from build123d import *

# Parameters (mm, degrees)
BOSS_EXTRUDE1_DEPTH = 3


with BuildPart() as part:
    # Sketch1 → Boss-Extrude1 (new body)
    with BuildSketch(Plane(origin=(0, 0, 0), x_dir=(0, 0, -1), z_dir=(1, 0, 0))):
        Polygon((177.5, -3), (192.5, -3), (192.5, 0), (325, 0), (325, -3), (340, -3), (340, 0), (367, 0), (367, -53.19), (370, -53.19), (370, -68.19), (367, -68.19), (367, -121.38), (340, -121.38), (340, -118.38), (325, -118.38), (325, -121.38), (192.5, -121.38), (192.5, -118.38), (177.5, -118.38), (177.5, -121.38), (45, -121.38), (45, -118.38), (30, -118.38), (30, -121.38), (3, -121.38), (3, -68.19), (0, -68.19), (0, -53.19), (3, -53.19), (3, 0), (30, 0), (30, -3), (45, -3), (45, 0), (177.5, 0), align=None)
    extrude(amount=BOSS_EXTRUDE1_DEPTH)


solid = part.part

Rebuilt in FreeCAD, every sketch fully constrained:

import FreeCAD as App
import Part
import Sketcher

V = App.Vector
Q = App.Units.Quantity


def add_polygon(sketch, points):
    """Adds a closed chain of lines whose ends are joined by coincident constraints."""
    first, n = sketch.GeometryCount, len(points)
    for a, b in zip(points, points[1:] + points[:1]):
        sketch.addGeometry(Part.LineSegment(App.Vector(*a, 0), App.Vector(*b, 0)), False)
    for i in range(n):
        sketch.addConstraint(Sketcher.Constraint("Coincident", first + i, 2, first + (i + 1) % n, 1))

doc = App.newDocument("Part")
body = doc.addObject("PartDesign::Body", "Body")

# Sketch on YZ plane
sketch1 = doc.addObject("Sketcher::SketchObject", "Sketch")
body.addObject(sketch1)
sketch1.AttachmentSupport = (doc.YZ_Plane, [""])
sketch1.MapMode = "FlatFace"
add_polygon(sketch1, [(-3, -192.5), (-3, -177.5), (0, -177.5), (0, -45), (-3, -45), (-3, -30), (0, -30), (0, -3), (-53.19, -3), (-53.19, 0), (-68.19, 0), (-68.19, -3), (-121.38, -3), (-121.38, -30), (-118.38, -30), (-118.38, -45), (-121.38, -45), (-121.38, -177.5), (-118.38, -177.5), (-118.38, -192.5), (-121.38, -192.5), (-121.38, -325), (-118.38, -325), (-118.38, -340), (-121.38, -340), (-121.38, -367), (-68.19, -367), (-68.19, -370), (-53.19, -370), (-53.19, -367), (0, -367), (0, -340), (-3, -340), (-3, -325), (0, -325), (0, -192.5)])  # lines 0-35
sketch1.addConstraint([
    Sketcher.Constraint("Vertical", 0),
    Sketcher.Constraint("Horizontal", 1),
    Sketcher.Constraint("Vertical", 2),
    Sketcher.Constraint("Horizontal", 3),
    Sketcher.Constraint("Vertical", 4),
    Sketcher.Constraint("Horizontal", 5),
    Sketcher.Constraint("Vertical", 6),
    Sketcher.Constraint("Horizontal", 7),
    Sketcher.Constraint("Vertical", 8),
    Sketcher.Constraint("Horizontal", 9),
    Sketcher.Constraint("Vertical", 10),
    Sketcher.Constraint("Horizontal", 11),
    Sketcher.Constraint("Vertical", 12),
    Sketcher.Constraint("Horizontal", 13),
    Sketcher.Constraint("Vertical", 14),
    Sketcher.Constraint("Horizontal", 15),
    Sketcher.Constraint("Vertical", 16),
    Sketcher.Constraint("Horizontal", 17),
    Sketcher.Constraint("Vertical", 18),
    Sketcher.Constraint("Horizontal", 19),
    Sketcher.Constraint("Vertical", 20),
    Sketcher.Constraint("Horizontal", 21),
    Sketcher.Constraint("Vertical", 22),
    Sketcher.Constraint("Horizontal", 23),
    Sketcher.Constraint("Vertical", 24),
    Sketcher.Constraint("Horizontal", 25),
    Sketcher.Constraint("Vertical", 26),
    Sketcher.Constraint("Horizontal", 27),
    Sketcher.Constraint("Vertical", 28),
    Sketcher.Constraint("Horizontal", 29),
    Sketcher.Constraint("Vertical", 30),
    Sketcher.Constraint("Horizontal", 31),
    Sketcher.Constraint("Vertical", 32),
    Sketcher.Constraint("Horizontal", 33),
    Sketcher.Constraint("Vertical", 34),
    Sketcher.Constraint("Horizontal", 35),
    Sketcher.Constraint("PointOnObject", 1, 2, -2),
    Sketcher.Constraint("PointOnObject", 5, 2, -2),
    Sketcher.Constraint("PointOnObject", 8, 2, -1),
    Sketcher.Constraint("PointOnObject", 29, 2, -2),
    Sketcher.Constraint("PointOnObject", 33, 2, -2),
    Sketcher.Constraint("Horizontal", 7, 2, 10, 2),
    Sketcher.Constraint("Horizontal", 5, 2, 12, 2),
    Sketcher.Constraint("Horizontal", 3, 2, 14, 2),
    Sketcher.Constraint("Horizontal", 1, 2, 16, 2),
    Sketcher.Constraint("Horizontal", 25, 2, 28, 2),
    Sketcher.Constraint("Horizontal", 23, 2, 30, 2),
    Sketcher.Constraint("Horizontal", 21, 2, 32, 2),
    Sketcher.Constraint("Horizontal", 19, 2, 34, 2),
    Sketcher.Constraint("Vertical", 0, 2, 3, 2),
    Sketcher.Constraint("Vertical", 12, 2, 15, 2),
    Sketcher.Constraint("Vertical", 14, 2, 17, 2),
    Sketcher.Constraint("Vertical", 16, 2, 19, 2),
    Sketcher.Constraint("Vertical", 18, 2, 21, 2),
    Sketcher.Constraint("Vertical", 20, 2, 23, 2),
    Sketcher.Constraint("Vertical", 10, 2, 25, 2),
    Sketcher.Constraint("Vertical", 8, 2, 27, 2),
    Sketcher.Constraint("Vertical", 4, 2, 31, 2),
    Sketcher.Constraint("Equal", 7, 11),
    Sketcher.Constraint("Equal", 5, 13),
    Sketcher.Constraint("Equal", 27, 0),
    Sketcher.Constraint("Equal", 0, 4),
    Sketcher.Constraint("Equal", 35, 8),
    Sketcher.Constraint("Equal", 16, 20),
    Sketcher.Constraint("Equal", 18, 22),
    Sketcher.Constraint("Equal", 12, 24),
    Sketcher.Constraint("Equal", 10, 26),
    Sketcher.Constraint("DistanceX", 1, 1, 1, 2, Q("3 mm")),
    Sketcher.Constraint("DistanceX", 9, 2, 9, 1, Q("15 mm")),
    Sketcher.Constraint("DistanceY", 6, 1, 6, 2, Q("27 mm")),
    Sketcher.Constraint("DistanceY", 2, 1, 2, 2, Q("132.5 mm")),
    Sketcher.Constraint("DistanceX", 7, 2, 7, 1, Q("53.19 mm")),
])
pad1 = doc.addObject("PartDesign::Pad", "Pad")
body.addObject(pad1)
pad1.Profile = sketch1
pad1.Length = 3

doc.recompute()
